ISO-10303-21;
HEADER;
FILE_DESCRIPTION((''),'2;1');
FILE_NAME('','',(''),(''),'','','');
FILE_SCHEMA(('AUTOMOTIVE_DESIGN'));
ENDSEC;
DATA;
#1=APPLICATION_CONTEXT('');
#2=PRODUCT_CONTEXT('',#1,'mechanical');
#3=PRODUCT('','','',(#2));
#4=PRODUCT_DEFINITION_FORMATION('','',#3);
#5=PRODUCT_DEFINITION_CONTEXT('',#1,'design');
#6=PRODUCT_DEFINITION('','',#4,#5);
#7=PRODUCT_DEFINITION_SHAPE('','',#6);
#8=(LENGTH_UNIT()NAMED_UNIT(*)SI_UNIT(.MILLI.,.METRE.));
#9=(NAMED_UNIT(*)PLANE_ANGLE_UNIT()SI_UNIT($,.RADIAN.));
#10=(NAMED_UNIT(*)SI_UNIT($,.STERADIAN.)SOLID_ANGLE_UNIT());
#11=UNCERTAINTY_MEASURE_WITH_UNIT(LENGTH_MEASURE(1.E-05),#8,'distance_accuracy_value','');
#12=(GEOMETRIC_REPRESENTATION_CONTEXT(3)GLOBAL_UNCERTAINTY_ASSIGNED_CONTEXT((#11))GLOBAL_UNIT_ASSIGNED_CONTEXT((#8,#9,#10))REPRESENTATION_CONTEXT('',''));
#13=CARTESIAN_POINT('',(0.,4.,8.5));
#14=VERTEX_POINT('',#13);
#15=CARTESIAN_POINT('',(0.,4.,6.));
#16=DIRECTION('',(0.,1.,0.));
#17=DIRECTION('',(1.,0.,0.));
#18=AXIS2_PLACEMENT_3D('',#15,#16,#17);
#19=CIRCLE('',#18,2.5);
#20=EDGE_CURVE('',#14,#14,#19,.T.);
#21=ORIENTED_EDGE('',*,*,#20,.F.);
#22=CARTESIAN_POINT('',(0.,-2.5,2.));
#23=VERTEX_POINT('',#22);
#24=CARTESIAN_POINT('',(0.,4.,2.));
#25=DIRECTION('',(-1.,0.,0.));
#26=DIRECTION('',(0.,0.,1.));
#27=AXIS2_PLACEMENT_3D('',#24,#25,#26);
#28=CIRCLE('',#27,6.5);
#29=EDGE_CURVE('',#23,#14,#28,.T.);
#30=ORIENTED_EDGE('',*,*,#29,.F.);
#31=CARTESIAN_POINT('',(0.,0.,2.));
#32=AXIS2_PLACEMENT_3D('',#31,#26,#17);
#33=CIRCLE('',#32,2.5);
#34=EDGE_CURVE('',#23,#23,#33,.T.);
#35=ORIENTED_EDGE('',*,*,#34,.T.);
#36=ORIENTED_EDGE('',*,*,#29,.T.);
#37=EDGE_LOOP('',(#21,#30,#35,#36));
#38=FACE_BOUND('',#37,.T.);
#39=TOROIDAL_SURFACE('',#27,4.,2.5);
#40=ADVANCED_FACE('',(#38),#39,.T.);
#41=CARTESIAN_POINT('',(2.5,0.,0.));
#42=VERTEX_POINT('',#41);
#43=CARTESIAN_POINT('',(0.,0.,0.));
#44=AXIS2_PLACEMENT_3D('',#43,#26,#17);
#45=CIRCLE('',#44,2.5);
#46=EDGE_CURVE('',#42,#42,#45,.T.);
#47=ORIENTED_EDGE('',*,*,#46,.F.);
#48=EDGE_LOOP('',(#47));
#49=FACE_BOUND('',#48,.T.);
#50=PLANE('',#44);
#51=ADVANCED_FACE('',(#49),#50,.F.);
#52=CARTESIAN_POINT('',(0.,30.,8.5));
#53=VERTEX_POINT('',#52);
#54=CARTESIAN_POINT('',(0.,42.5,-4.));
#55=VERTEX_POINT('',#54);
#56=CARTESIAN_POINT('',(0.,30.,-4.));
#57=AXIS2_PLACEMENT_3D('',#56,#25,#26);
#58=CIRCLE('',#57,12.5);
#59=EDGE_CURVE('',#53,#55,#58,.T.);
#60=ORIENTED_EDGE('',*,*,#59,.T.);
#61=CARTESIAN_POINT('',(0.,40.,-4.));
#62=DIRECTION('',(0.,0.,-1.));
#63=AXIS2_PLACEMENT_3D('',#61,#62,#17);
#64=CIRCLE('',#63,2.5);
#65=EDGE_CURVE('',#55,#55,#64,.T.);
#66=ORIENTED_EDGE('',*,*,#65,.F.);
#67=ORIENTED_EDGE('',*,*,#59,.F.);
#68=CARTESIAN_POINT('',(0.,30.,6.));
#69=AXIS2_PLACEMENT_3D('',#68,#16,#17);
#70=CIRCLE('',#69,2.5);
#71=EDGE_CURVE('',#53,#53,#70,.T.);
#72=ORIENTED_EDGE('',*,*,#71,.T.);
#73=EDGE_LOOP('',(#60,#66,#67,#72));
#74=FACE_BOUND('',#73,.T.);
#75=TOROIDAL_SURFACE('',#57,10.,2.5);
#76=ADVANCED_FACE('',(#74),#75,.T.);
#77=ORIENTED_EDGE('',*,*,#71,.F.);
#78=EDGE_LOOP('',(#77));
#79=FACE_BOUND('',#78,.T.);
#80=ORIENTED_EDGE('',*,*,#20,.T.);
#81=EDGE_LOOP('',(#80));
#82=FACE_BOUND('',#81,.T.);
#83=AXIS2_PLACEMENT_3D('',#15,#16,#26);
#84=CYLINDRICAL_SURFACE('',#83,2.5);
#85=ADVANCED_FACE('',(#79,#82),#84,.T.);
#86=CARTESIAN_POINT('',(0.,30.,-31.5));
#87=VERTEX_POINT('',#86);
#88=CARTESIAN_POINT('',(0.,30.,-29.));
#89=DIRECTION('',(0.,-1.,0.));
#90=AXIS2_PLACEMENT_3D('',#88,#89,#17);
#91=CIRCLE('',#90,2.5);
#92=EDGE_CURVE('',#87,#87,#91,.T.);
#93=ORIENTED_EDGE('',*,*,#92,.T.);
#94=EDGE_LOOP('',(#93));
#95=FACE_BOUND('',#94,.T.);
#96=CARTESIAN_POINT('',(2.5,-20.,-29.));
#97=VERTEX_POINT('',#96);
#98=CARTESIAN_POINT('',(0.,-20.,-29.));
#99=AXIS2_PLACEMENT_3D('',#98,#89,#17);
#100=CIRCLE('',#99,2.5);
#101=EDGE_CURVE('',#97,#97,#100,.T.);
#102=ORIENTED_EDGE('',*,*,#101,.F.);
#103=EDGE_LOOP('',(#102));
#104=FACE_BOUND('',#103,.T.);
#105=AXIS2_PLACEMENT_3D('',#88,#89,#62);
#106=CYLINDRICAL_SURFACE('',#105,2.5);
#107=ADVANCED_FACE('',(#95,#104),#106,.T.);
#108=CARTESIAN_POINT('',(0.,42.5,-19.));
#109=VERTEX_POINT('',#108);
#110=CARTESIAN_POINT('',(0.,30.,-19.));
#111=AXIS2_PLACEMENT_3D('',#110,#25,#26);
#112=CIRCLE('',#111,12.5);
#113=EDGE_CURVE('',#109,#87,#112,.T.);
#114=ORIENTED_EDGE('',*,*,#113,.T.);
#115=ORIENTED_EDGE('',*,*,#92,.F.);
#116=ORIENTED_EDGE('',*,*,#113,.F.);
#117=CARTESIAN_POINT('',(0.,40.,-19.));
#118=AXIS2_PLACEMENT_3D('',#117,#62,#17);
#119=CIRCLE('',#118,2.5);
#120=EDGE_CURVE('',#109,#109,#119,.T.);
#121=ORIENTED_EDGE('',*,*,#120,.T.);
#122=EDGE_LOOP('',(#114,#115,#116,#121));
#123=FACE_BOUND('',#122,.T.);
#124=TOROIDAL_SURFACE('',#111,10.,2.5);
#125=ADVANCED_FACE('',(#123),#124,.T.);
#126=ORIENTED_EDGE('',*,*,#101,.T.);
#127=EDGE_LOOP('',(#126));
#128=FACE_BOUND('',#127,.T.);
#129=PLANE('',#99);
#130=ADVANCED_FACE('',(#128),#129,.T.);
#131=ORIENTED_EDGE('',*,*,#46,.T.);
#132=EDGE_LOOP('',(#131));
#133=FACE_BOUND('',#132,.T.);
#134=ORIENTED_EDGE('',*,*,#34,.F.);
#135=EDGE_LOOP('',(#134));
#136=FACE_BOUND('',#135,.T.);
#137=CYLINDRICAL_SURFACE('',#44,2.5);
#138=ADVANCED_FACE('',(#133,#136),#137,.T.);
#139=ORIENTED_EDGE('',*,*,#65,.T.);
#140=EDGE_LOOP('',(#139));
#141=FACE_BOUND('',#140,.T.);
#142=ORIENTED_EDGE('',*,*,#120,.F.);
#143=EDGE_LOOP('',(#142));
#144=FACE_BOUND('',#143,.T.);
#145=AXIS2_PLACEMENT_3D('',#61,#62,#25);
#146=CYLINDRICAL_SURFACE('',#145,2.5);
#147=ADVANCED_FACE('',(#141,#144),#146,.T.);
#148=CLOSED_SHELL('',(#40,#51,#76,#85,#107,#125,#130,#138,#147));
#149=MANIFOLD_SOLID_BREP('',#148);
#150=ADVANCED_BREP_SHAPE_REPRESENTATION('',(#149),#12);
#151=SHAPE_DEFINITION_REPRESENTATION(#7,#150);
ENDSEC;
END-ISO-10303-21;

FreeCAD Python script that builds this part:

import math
import FreeCAD as App
import Part
import Sketcher
from FreeCAD import Vector

doc = App.newDocument("Part")
body = doc.addObject("PartDesign::Body", "Body")

sketch1 = body.newObject("Sketcher::SketchObject", "Sketch")
sketch1.AttachmentSupport = (doc.getObject("XY_Plane"), [""])
sketch1.MapMode = "FlatFace"
sketch1.addGeometry(Part.Circle(Vector(0, 0, 0), Vector(0, 0, 1), 2.5), False)
sketch1.addConstraint([
    Sketcher.Constraint("Coincident", 0, 3, -1, 1),
    Sketcher.Constraint("Diameter", 0, 5.0),
])

sketch2 = body.newObject("Sketcher::SketchObject", "Sketch001")
sketch2.AttachmentSupport = (doc.getObject("YZ_Plane"), [""])
sketch2.MapMode = "FlatFace"
sketch2.addGeometry([
    Part.LineSegment(Vector(0, 0, 0), Vector(0, 2, 0)),
    Part.ArcOfCircle(Part.Circle(Vector(4, 2, 0), Vector(0, 0, 1), 4), math.radians(90), math.radians(180)),
    Part.LineSegment(Vector(4, 6, 0), Vector(30, 6, 0)),
    Part.ArcOfCircle(Part.Circle(Vector(30, -4, 0), Vector(0, 0, 1), 10), math.radians(0), math.radians(90)),
    Part.LineSegment(Vector(40, -4, 0), Vector(40, -19, 0)),
    Part.ArcOfCircle(Part.Circle(Vector(30, -19, 0), Vector(0, 0, 1), 10), math.radians(-90), math.radians(0)),
    Part.LineSegment(Vector(30, -29, 0), Vector(-20, -29, 0)),
], False)
sketch2.addConstraint([
    Sketcher.Constraint("Tangent", 0, 2, 1, 2),
    Sketcher.Constraint("Tangent", 1, 1, 2, 1),
    Sketcher.Constraint("Tangent", 2, 2, 3, 2),
    Sketcher.Constraint("Tangent", 3, 1, 4, 1),
    Sketcher.Constraint("Tangent", 4, 2, 5, 2),
    Sketcher.Constraint("Tangent", 5, 1, 6, 1),
    Sketcher.Constraint("Vertical", 0),
    Sketcher.Constraint("Horizontal", 2),
    Sketcher.Constraint("Vertical", 4),
    Sketcher.Constraint("Horizontal", 6),
    Sketcher.Constraint("Coincident", 0, 1, -1, 1),
    Sketcher.Constraint("Equal", 3, 5),
    Sketcher.Constraint("Radius", 1, 4.0),
    Sketcher.Constraint("Radius", 3, 10.0),
    Sketcher.Constraint("DistanceX", 2, 1, 2, 2, 26.0),
    Sketcher.Constraint("DistanceX", 6, 2, 6, 1, 50.0),
    Sketcher.Constraint("DistanceY", 0, 1, 0, 2, 2.0),
    Sketcher.Constraint("DistanceY", 4, 2, 4, 1, 15.0),
])
doc.recompute()

additivepipe = body.newObject("PartDesign::AdditivePipe", "AdditivePipe")
additivepipe.Profile = sketch1
additivepipe.Spine = (sketch2, ["Edge1", "Edge2", "Edge3", "Edge4", "Edge5", "Edge6", "Edge7"])

doc.recompute()
